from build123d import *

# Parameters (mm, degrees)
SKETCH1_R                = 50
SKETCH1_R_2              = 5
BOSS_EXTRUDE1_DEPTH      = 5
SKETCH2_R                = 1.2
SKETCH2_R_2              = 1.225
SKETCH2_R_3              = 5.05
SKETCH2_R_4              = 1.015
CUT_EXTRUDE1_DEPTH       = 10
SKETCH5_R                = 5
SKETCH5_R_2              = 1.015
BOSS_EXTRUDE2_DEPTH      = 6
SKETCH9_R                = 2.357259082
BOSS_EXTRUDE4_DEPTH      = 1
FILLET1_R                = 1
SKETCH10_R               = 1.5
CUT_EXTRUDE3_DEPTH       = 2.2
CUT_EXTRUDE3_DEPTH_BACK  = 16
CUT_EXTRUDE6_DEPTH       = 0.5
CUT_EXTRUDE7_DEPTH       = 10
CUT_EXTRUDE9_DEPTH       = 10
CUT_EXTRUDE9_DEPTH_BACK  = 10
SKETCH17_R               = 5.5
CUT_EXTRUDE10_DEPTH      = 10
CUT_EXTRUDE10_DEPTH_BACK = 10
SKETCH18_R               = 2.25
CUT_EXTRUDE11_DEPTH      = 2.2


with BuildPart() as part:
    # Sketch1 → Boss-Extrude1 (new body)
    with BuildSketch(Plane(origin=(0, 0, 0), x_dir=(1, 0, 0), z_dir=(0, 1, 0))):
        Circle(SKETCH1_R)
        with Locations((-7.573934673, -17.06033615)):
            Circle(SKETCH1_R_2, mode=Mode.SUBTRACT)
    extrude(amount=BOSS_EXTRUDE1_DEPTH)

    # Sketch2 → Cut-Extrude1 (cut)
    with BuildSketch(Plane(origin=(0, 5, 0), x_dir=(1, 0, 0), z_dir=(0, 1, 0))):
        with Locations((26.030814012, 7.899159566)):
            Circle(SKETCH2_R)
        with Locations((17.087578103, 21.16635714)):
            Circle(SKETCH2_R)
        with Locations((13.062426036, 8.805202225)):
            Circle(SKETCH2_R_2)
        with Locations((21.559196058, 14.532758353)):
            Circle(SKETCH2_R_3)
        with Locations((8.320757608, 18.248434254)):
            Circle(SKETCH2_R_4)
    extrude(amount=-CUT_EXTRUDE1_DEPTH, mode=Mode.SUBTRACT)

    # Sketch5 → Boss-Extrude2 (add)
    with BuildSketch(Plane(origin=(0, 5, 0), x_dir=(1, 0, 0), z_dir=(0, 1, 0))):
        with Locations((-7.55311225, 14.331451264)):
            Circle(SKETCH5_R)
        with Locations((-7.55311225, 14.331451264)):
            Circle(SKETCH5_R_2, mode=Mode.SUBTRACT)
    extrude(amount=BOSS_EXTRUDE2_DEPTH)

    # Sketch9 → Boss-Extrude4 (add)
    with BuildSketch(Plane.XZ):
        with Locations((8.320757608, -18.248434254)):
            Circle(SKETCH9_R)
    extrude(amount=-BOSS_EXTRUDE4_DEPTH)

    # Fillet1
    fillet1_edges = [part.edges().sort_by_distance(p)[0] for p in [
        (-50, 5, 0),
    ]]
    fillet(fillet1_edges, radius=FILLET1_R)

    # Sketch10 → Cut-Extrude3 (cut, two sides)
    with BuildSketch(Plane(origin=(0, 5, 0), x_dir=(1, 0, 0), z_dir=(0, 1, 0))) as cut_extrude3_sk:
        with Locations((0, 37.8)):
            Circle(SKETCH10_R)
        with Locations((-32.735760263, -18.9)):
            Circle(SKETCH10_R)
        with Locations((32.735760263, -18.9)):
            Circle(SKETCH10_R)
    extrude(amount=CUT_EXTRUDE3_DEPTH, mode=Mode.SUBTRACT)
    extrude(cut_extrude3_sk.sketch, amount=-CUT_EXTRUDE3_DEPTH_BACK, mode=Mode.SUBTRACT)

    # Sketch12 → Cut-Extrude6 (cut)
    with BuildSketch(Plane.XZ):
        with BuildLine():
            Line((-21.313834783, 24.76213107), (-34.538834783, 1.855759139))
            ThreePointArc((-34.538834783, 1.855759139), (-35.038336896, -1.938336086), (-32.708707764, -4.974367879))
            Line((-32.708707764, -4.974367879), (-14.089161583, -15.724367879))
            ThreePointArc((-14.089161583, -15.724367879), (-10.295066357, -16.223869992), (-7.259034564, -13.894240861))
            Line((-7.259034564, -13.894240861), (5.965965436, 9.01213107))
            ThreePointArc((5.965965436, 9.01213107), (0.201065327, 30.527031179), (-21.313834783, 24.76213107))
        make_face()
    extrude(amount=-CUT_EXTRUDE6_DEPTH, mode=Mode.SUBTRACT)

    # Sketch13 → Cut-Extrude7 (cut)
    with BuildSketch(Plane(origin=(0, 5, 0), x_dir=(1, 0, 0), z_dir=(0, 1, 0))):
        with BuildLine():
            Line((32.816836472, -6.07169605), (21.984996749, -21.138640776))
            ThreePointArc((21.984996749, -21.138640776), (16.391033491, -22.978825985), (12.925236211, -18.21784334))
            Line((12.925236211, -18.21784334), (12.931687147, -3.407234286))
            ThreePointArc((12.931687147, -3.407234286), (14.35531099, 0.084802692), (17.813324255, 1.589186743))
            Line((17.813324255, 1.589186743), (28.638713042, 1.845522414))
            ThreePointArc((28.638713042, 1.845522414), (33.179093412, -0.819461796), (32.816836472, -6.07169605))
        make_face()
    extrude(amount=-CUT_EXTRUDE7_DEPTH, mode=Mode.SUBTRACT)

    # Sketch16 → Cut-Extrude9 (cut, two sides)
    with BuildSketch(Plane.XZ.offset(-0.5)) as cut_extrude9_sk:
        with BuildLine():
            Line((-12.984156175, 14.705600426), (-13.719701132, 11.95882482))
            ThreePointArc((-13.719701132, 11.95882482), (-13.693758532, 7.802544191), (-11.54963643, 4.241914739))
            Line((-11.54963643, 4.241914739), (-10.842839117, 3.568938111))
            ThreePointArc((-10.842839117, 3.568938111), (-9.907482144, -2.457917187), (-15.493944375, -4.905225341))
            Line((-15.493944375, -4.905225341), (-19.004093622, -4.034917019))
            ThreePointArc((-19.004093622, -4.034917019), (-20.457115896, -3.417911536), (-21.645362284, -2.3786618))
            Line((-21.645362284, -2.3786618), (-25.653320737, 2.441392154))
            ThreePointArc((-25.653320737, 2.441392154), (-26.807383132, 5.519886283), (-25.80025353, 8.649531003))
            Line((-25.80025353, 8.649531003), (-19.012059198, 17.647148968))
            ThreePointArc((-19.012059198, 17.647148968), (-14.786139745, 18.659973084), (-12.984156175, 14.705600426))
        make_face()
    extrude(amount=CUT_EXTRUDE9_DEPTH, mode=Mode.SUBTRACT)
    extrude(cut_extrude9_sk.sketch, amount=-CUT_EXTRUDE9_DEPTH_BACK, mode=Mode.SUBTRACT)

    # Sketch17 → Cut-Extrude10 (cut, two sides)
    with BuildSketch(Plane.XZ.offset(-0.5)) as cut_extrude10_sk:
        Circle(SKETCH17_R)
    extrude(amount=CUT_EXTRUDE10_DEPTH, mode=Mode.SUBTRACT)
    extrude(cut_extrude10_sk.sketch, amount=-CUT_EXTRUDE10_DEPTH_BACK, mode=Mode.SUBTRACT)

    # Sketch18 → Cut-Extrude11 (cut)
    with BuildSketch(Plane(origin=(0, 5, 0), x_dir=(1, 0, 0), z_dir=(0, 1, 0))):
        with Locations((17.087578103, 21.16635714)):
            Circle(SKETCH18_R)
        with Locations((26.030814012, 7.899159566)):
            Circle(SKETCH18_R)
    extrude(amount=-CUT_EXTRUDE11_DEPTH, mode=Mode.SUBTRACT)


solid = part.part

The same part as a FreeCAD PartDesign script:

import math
import FreeCAD as App
import Part
import Sketcher
from FreeCAD import Vector
Q = App.Units.Quantity


def edges_at(feature, points):
    """Names of the edges that pass closest to the given points."""
    edges = feature.Shape.Edges
    near = lambda p: min(range(len(edges)), key=lambda i: edges[i].distToShape(Part.Vertex(*p))[0])
    return sorted({f"Edge{near(p) + 1}" for p in points})

doc = App.newDocument("Part")
params = doc.addObject("Spreadsheet::Sheet", "Params")
for row, (alias, value) in enumerate([
    ("sketch1_diameter", "100 mm"),
    ("sketch1_diameter2", "10 mm"),
    ("pad1_length", "5 mm"),
    ("sketch2_diameter", "2.4 mm"),
    ("sketch2_diameter2", "10.1 mm"),
    ("sketch2_diameter3", "2.45 mm"),
    ("sketch2_diameter4", "2.03 mm"),
    ("pocket1_length", "10 mm"),
    ("sketch3_diameter", "10 mm"),
    ("sketch3_diameter2", "2.03 mm"),
    ("pad2_length", "6 mm"),
    ("pad3_length", "1 mm"),
    ("fillet_radius", "1 mm"),
    ("sketch5_diameter", "3 mm"),
    ("sketch6_radius", "5 mm"),
    ("sketch6_radius2", "15.75 mm"),
    ("sketch6_length", "26.45 mm"),
    ("pocket3_length", "0.5 mm"),
    ("sketch7_radius", "5 mm"),
    ("pocket4_length", "10 mm"),
    ("sketch8_radius", "5 mm"),
    ("sketch9_diameter", "11 mm"),
    ("sketch10_diameter", "4.5 mm"),
    ("pocket7_length", "2.2 mm"),
], start=1):
    params.set(f"A{row}", alias)
    params.set(f"B{row}", "=" + value)
    params.setAlias(f"B{row}", alias)

body = doc.addObject("PartDesign::Body", "Body")

sketch1 = body.newObject("Sketcher::SketchObject", "Sketch")
sketch1.AttachmentSupport = (doc.getObject("XZ_Plane"), [""])
sketch1.MapMode = "FlatFace"
sketch1.addGeometry([
    Part.Circle(Vector(0, 0, 0), Vector(0, 0, 1), 50),
    Part.Circle(Vector(-7.573935, 17.060336, 0), Vector(0, 0, 1), 5),
], False)
sketch1.addConstraint([
    Sketcher.Constraint("Coincident", 0, 3, -1, 1),
    Sketcher.Constraint("Diameter", 0, Q("100 mm")),
    Sketcher.Constraint("Diameter", 1, Q("10 mm")),
    Sketcher.Constraint("DistanceX", 1, 3, -1, 1, Q("7.573935 mm")),
    Sketcher.Constraint("DistanceY", -1, 1, 1, 3, Q("17.060336 mm")),
])
sketch1.setExpression("Constraints[1]", "Params.sketch1_diameter")
sketch1.setExpression("Constraints[2]", "Params.sketch1_diameter2")
pad1 = body.newObject("PartDesign::Pad", "Pad")
pad1.Profile = sketch1
pad1.setExpression("Length", "Params.pad1_length")
pad1.Reversed = True

sketch2 = body.newObject("Sketcher::SketchObject", "Sketch001")
sketch2.AttachmentSupport = (doc.getObject("XZ_Plane"), [""])
sketch2.MapMode = "FlatFace"
sketch2.AttachmentOffset = App.Placement(Vector(0, 0, -5), App.Rotation())
sketch2.addGeometry([
    Part.Circle(Vector(26.030814, -7.89916, 0), Vector(0, 0, 1), 1.2),
    Part.Circle(Vector(17.087578, -21.166357, 0), Vector(0, 0, 1), 1.2),
    Part.Circle(Vector(13.062426, -8.805202, 0), Vector(0, 0, 1), 1.225),
    Part.Circle(Vector(21.559196, -14.532758, 0), Vector(0, 0, 1), 5.05),
    Part.Circle(Vector(8.320758, -18.248434, 0), Vector(0, 0, 1), 1.015),
], False)
sketch2.addConstraint([
    Sketcher.Constraint("Equal", 0, 1),
    Sketcher.Constraint("Diameter", 0, Q("2.4 mm")),
    Sketcher.Constraint("Diameter", 3, Q("10.1 mm")),
    Sketcher.Constraint("Diameter", 2, Q("2.45 mm")),
    Sketcher.Constraint("Diameter", 4, Q("2.03 mm")),
    Sketcher.Constraint("DistanceY", 3, 3, 0, 3, Q("6.633599 mm")),
    Sketcher.Constraint("DistanceY", 1, 3, 3, 3, Q("6.633599 mm")),
    Sketcher.Constraint("DistanceY", 0, 3, -1, 1, Q("7.89916 mm")),
    Sketcher.Constraint("DistanceX", -1, 1, 1, 3, Q("17.087578 mm")),
    Sketcher.Constraint("DistanceX", 2, 3, 3, 3, Q("8.49677 mm")),
    Sketcher.Constraint("DistanceX", 4, 3, 1, 3, Q("8.76682 mm")),
    Sketcher.Constraint("DistanceX", 4, 3, 2, 3, Q("4.741668 mm")),
    Sketcher.Constraint("DistanceX", -1, 1, 0, 3, Q("26.030814 mm")),
    Sketcher.Constraint("DistanceY", 2, 3, -1, 1, Q("8.805202 mm")),
    Sketcher.Constraint("DistanceY", 4, 3, -1, 1, Q("18.248434 mm")),
])
sketch2.setExpression("Constraints[1]", "Params.sketch2_diameter")
sketch2.setExpression("Constraints[2]", "Params.sketch2_diameter2")
sketch2.setExpression("Constraints[3]", "Params.sketch2_diameter3")
sketch2.setExpression("Constraints[4]", "Params.sketch2_diameter4")
pocket1 = body.newObject("PartDesign::Pocket", "Pocket")
pocket1.Profile = sketch2
pocket1.setExpression("Length", "Params.pocket1_length")
pocket1.Reversed = True

sketch3 = body.newObject("Sketcher::SketchObject", "Sketch002")
sketch3.AttachmentSupport = (doc.getObject("XZ_Plane"), [""])
sketch3.MapMode = "FlatFace"
sketch3.AttachmentOffset = App.Placement(Vector(0, 0, -5), App.Rotation())
sketch3.addGeometry([
    Part.Circle(Vector(-7.553112, -14.331451, 0), Vector(0, 0, 1), 5),
    Part.Circle(Vector(-7.553112, -14.331451, 0), Vector(0, 0, 1), 1.015),
], False)
sketch3.addConstraint([
    Sketcher.Constraint("Coincident", 1, 3, 0, 3),
    Sketcher.Constraint("Diameter", 0, Q("10 mm")),
    Sketcher.Constraint("Diameter", 1, Q("2.03 mm")),
    Sketcher.Constraint("DistanceY", 0, 3, -1, 1, Q("14.331451 mm")),
    Sketcher.Constraint("DistanceX", 0, 3, -1, 1, Q("7.553112 mm")),
])
sketch3.setExpression("Constraints[1]", "Params.sketch3_diameter")
sketch3.setExpression("Constraints[2]", "Params.sketch3_diameter2")
pad2 = body.newObject("PartDesign::Pad", "Pad001")
pad2.Profile = sketch3
pad2.setExpression("Length", "Params.pad2_length")
pad2.Reversed = True

sketch4 = body.newObject("Sketcher::SketchObject", "Sketch003")
sketch4.AttachmentSupport = (doc.getObject("XZ_Plane"), [""])
sketch4.MapMode = "FlatFace"
sketch4.addGeometry(Part.Circle(Vector(8.320758, -18.248434, 0), Vector(0, 0, 1), 2.357259), False)
sketch4.addConstraint([
    Sketcher.Constraint("Diameter", 0, Q("4.714518 mm")),
    Sketcher.Constraint("DistanceX", -1, 1, 0, 3, Q("8.320758 mm")),
    Sketcher.Constraint("DistanceY", 0, 3, -1, 1, Q("18.248434 mm")),
])
pad3 = body.newObject("PartDesign::Pad", "Pad002")
pad3.Profile = sketch4
pad3.setExpression("Length", "Params.pad3_length")
pad3.Reversed = True
doc.recompute()

fillet = body.newObject("PartDesign::Fillet", "Fillet")
fillet.Base = (pad3, edges_at(pad3, [(-50, 5, 0)]))
fillet.setExpression("Radius", "Params.fillet_radius")

sketch5 = body.newObject("Sketcher::SketchObject", "Sketch004")
sketch5.AttachmentSupport = (doc.getObject("XZ_Plane"), [""])
sketch5.MapMode = "FlatFace"
sketch5.AttachmentOffset = App.Placement(Vector(0, 0, -5), App.Rotation())
sketch5.addGeometry([
    Part.Circle(Vector(0, -37.8, 0), Vector(0, 0, 1), 1.5),
    Part.Circle(Vector(-32.73576, 18.9, 0), Vector(0, 0, 1), 1.5),
    Part.Circle(Vector(32.73576, 18.9, 0), Vector(0, 0, 1), 1.5),
], False)
sketch5.addConstraint([
    Sketcher.Constraint("Equal", 0, 1),
    Sketcher.Constraint("Equal", 1, 2),
    Sketcher.Constraint("Symmetric", 1, 3, 2, 3, -2),
    Sketcher.Constraint("PointOnObject", 0, 3, -2),
    Sketcher.Constraint("Diameter", 0, Q("3 mm")),
    Sketcher.Constraint("DistanceY", 0, 3, -1, 1, Q("37.8 mm")),
    Sketcher.Constraint("DistanceY", -1, 1, 1, 3, Q("18.9 mm")),
    Sketcher.Constraint("DistanceX", 1, 3, -1, 1, Q("32.73576 mm")),
])
sketch5.setExpression("Constraints[4]", "Params.sketch5_diameter")
pocket2 = body.newObject("PartDesign::Pocket", "Pocket001")
pocket2.Profile = sketch5
pocket2.Type = "ThroughAll"
pocket2.Midplane = True

sketch6 = body.newObject("Sketcher::SketchObject", "Sketch005")
sketch6.AttachmentSupport = (doc.getObject("XZ_Plane"), [""])
sketch6.MapMode = "FlatFace"
sketch6.addGeometry([
    Part.LineSegment(Vector(-21.313835, 24.762131, 0), Vector(-34.538835, 1.855759, 0)),
    Part.ArcOfCircle(Part.Circle(Vector(-30.208708, -0.644241, 0), Vector(0, 0, 1), 5), math.radians(150), math.radians(240)),
    Part.LineSegment(Vector(-32.708708, -4.974368, 0), Vector(-14.089162, -15.724368, 0)),
    Part.ArcOfCircle(Part.Circle(Vector(-11.589162, -11.394241, 0), Vector(0, 0, 1), 5), math.radians(-120), math.radians(-30)),
    Part.LineSegment(Vector(-7.259035, -13.894241, 0), Vector(5.965965, 9.012131, 0)),
    Part.ArcOfCircle(Part.Circle(Vector(-7.673935, 16.887131, 0), Vector(0, 0, 1), 15.75), math.radians(-30), math.radians(150)),
], False)
sketch6.addConstraint([
    Sketcher.Constraint("Tangent", 0, 2, 1, 1),
    Sketcher.Constraint("Tangent", 1, 2, 2, 1),
    Sketcher.Constraint("Tangent", 2, 2, 3, 1),
    Sketcher.Constraint("Tangent", 3, 2, 4, 1),
    Sketcher.Constraint("Tangent", 4, 2, 5, 1),
    Sketcher.Constraint("Tangent", 5, 2, 0, 1),
    Sketcher.Constraint("Equal", 1, 3),
    Sketcher.Constraint("Perpendicular", 0, 2),
    Sketcher.Constraint("Perpendicular", 2, 4),
    Sketcher.Constraint("Radius", 1, Q("5 mm")),
    Sketcher.Constraint("Angle", 0, Q("-120 deg")),
    Sketcher.Constraint("Radius", 5, Q("15.75 mm")),
    Sketcher.Constraint("Distance", 0, Q("26.45 mm")),
    Sketcher.Constraint("DistanceY", 1, 3, -1, 1, Q("0.644241 mm")),
    Sketcher.Constraint("DistanceX", 3, 3, -1, 1, Q("11.589162 mm")),
])
sketch6.setExpression("Constraints[9]", "Params.sketch6_radius")
sketch6.setExpression("Constraints[11]", "Params.sketch6_radius2")
sketch6.setExpression("Constraints[12]", "Params.sketch6_length")
pocket3 = body.newObject("PartDesign::Pocket", "Pocket002")
pocket3.Profile = sketch6
pocket3.setExpression("Length", "Params.pocket3_length")

sketch7 = body.newObject("Sketcher::SketchObject", "Sketch006")
sketch7.AttachmentSupport = (doc.getObject("XZ_Plane"), [""])
sketch7.MapMode = "FlatFace"
sketch7.AttachmentOffset = App.Placement(Vector(0, 0, -5), App.Rotation())
sketch7.addGeometry([
    Part.LineSegment(Vector(21.984997, 21.138641, 0), Vector(32.816836, 6.071696, 0)),
    Part.ArcOfCircle(Part.Circle(Vector(28.757075, 3.153076, 0), Vector(0, 0, 1), 5), math.radians(-91.35646), math.radians(35.712892)),
    Part.LineSegment(Vector(28.638713, -1.845522, 0), Vector(17.813324, -1.589187, 0)),
    Part.ArcOfCircle(Part.Circle(Vector(17.931687, 3.409412, 0), Vector(0, 0, 1), 5), math.radians(-179.975044), math.radians(-91.35646)),
    Part.LineSegment(Vector(12.931687, 3.407234, 0), Vector(12.925236, 18.217843, 0)),
    Part.ArcOfCircle(Part.Circle(Vector(17.925236, 18.220021, 0), Vector(0, 0, 1), 5), math.radians(35.712892), math.radians(180.024956)),
], False)
sketch7.addConstraint([
    Sketcher.Constraint("Tangent", 0, 2, 1, 2),
    Sketcher.Constraint("Tangent", 1, 1, 2, 1),
    Sketcher.Constraint("Tangent", 2, 2, 3, 2),
    Sketcher.Constraint("Tangent", 3, 1, 4, 1),
    Sketcher.Constraint("Tangent", 4, 2, 5, 2),
    Sketcher.Constraint("Tangent", 5, 1, 0, 1),
    Sketcher.Constraint("Equal", 1, 3),
    Sketcher.Constraint("Equal", 3, 5),
    Sketcher.Constraint("Radius", 1, Q("5 mm")),
    Sketcher.Constraint("DistanceX", 5, 3, 0, 2, Q("14.891601 mm")),
    Sketcher.Constraint("DistanceY", 1, 1, 1, 3, Q("4.998599 mm")),
    Sketcher.Constraint("Distance", 4, Q("14.81061 mm")),
    Sketcher.Constraint("DistanceY", -1, 1, 5, 3, Q("18.220021 mm")),
    Sketcher.Constraint("DistanceX", 3, 3, 1, 3, Q("10.825389 mm")),
    Sketcher.Constraint("DistanceX", -1, 1, 1, 3, Q("28.757075 mm")),
])
sketch7.setExpression("Constraints[8]", "Params.sketch7_radius")
pocket4 = body.newObject("PartDesign::Pocket", "Pocket003")
pocket4.Profile = sketch7
pocket4.setExpression("Length", "Params.pocket4_length")
pocket4.Reversed = True

sketch8 = body.newObject("Sketcher::SketchObject", "Sketch007")
sketch8.AttachmentSupport = (doc.getObject("XZ_Plane"), [""])
sketch8.MapMode = "FlatFace"
sketch8.AttachmentOffset = App.Placement(Vector(0, 0, -0.5), App.Rotation())
sketch8.addGeometry([
    Part.LineSegment(Vector(-13.719701, 11.958825, 0), Vector(-12.984156, 14.7056, 0)),
    Part.ArcOfCircle(Part.Circle(Vector(-16.284547, 15.589395, 0), Vector(0, 0, 1), 3.416676), math.radians(-14.991216), math.radians(142.96751)),
    Part.LineSegment(Vector(-19.012059, 17.647149, 0), Vector(-25.800254, 8.649531, 0)),
    Part.ArcOfCircle(Part.Circle(Vector(-21.808783, 5.638192, 0), Vector(0, 0, 1), 5), math.radians(142.96751), math.radians(219.74411)),
    Part.LineSegment(Vector(-25.653321, 2.441392, 0), Vector(-21.645362, -2.378662, 0)),
    Part.ArcOfCircle(Part.Circle(Vector(-17.800825, 0.818138, 0), Vector(0, 0, 1), 5), math.radians(-140.25589), math.radians(-103.925133)),
    Part.LineSegment(Vector(-19.004094, -4.034917, 0), Vector(-15.493944, -4.905225, 0)),
    Part.ArcOfCircle(Part.Circle(Vector(-14.290675, -0.05217, 0), Vector(0, 0, 1), 5), math.radians(-103.925133), math.radians(46.404139)),
    Part.LineSegment(Vector(-10.842839, 3.568938, 0), Vector(-11.549636, 4.241915, 0)),
    Part.ArcOfCircle(Part.Circle(Vector(-6.13569, 9.927941, 0), Vector(0, 0, 1), 7.851224), math.radians(165.008785), math.radians(226.404139)),
], False)
sketch8.addConstraint([
    Sketcher.Constraint("Tangent", 0, 2, 1, 1),
    Sketcher.Constraint("Tangent", 1, 2, 2, 1),
    Sketcher.Constraint("Tangent", 2, 2, 3, 1),
    Sketcher.Constraint("Tangent", 3, 2, 4, 1),
    Sketcher.Constraint("Tangent", 4, 2, 5, 1),
    Sketcher.Constraint("Tangent", 5, 2, 6, 1),
    Sketcher.Constraint("Tangent", 6, 2, 7, 1),
    Sketcher.Constraint("Tangent", 7, 2, 8, 1),
    Sketcher.Constraint("Tangent", 8, 2, 9, 2),
    Sketcher.Constraint("Tangent", 9, 1, 0, 1),
    Sketcher.Constraint("Equal", 3, 5),
    Sketcher.Constraint("Equal", 5, 7),
    Sketcher.Constraint("Radius", 3, Q("5 mm")),
    Sketcher.Constraint("Radius", 1, Q("3.416676 mm")),
    Sketcher.Constraint("Radius", 9, Q("7.851224 mm")),
    Sketcher.Constraint("DistanceY", -1, 1, 0, 2, Q("14.7056 mm")),
    Sketcher.Constraint("DistanceX", 9, 1, -1, 1, Q("13.719701 mm")),
    Sketcher.Constraint("DistanceY", 3, 2, 3, 3, Q("3.1968 mm")),
    Sketcher.Constraint("DistanceY", 5, 3, 7, 2, Q("2.7508 mm")),
    Sketcher.Constraint("Distance", 8, Q("0.975941 mm")),
    Sketcher.Constraint("DistanceY", -1, 1, 3, 3, Q("5.638192 mm")),
    Sketcher.Constraint("DistanceY", -1, 1, 5, 3, Q("0.818138 mm")),
    Sketcher.Constraint("DistanceY", 7, 3, -1, 1, Q("0.05217 mm")),
    Sketcher.Constraint("DistanceX", 9, 3, -1, 1, Q("6.13569 mm")),
    Sketcher.Constraint("DistanceX", 1, 2, -1, 1, Q("19.012059 mm")),
])
sketch8.setExpression("Constraints[12]", "Params.sketch8_radius")
pocket5 = body.newObject("PartDesign::Pocket", "Pocket004")
pocket5.Profile = sketch8
pocket5.Type = "ThroughAll"
pocket5.Midplane = True

sketch9 = body.newObject("Sketcher::SketchObject", "Sketch008")
sketch9.AttachmentSupport = (doc.getObject("XZ_Plane"), [""])
sketch9.MapMode = "FlatFace"
sketch9.AttachmentOffset = App.Placement(Vector(0, 0, -0.5), App.Rotation())
sketch9.addGeometry(Part.Circle(Vector(0, 0, 0), Vector(0, 0, 1), 5.5), False)
sketch9.addConstraint([
    Sketcher.Constraint("Coincident", 0, 3, -1, 1),
    Sketcher.Constraint("Diameter", 0, Q("11 mm")),
])
sketch9.setExpression("Constraints[1]", "Params.sketch9_diameter")
pocket6 = body.newObject("PartDesign::Pocket", "Pocket005")
pocket6.Profile = sketch9
pocket6.Type = "ThroughAll"
pocket6.Midplane = True

sketch10 = body.newObject("Sketcher::SketchObject", "Sketch009")
sketch10.AttachmentSupport = (doc.getObject("XZ_Plane"), [""])
sketch10.MapMode = "FlatFace"
sketch10.AttachmentOffset = App.Placement(Vector(0, 0, -5), App.Rotation())
sketch10.addGeometry([
    Part.Circle(Vector(17.087578, -21.166357, 0), Vector(0, 0, 1), 2.25),
    Part.Circle(Vector(26.030814, -7.89916, 0), Vector(0, 0, 1), 2.25),
], False)
sketch10.addConstraint([
    Sketcher.Constraint("Equal", 0, 1),
    Sketcher.Constraint("Diameter", 0, Q("4.5 mm")),
    Sketcher.Constraint("DistanceX", -1, 1, 0, 3, Q("17.087578 mm")),
    Sketcher.Constraint("DistanceY", 1, 3, -1, 1, Q("7.89916 mm")),
    Sketcher.Constraint("DistanceY", 0, 3, -1, 1, Q("21.166357 mm")),
    Sketcher.Constraint("DistanceX", -1, 1, 1, 3, Q("26.030814 mm")),
])
sketch10.setExpression("Constraints[1]", "Params.sketch10_diameter")
pocket7 = body.newObject("PartDesign::Pocket", "Pocket006")
pocket7.Profile = sketch10
pocket7.setExpression("Length", "Params.pocket7_length")
pocket7.Reversed = True

doc.recompute()
